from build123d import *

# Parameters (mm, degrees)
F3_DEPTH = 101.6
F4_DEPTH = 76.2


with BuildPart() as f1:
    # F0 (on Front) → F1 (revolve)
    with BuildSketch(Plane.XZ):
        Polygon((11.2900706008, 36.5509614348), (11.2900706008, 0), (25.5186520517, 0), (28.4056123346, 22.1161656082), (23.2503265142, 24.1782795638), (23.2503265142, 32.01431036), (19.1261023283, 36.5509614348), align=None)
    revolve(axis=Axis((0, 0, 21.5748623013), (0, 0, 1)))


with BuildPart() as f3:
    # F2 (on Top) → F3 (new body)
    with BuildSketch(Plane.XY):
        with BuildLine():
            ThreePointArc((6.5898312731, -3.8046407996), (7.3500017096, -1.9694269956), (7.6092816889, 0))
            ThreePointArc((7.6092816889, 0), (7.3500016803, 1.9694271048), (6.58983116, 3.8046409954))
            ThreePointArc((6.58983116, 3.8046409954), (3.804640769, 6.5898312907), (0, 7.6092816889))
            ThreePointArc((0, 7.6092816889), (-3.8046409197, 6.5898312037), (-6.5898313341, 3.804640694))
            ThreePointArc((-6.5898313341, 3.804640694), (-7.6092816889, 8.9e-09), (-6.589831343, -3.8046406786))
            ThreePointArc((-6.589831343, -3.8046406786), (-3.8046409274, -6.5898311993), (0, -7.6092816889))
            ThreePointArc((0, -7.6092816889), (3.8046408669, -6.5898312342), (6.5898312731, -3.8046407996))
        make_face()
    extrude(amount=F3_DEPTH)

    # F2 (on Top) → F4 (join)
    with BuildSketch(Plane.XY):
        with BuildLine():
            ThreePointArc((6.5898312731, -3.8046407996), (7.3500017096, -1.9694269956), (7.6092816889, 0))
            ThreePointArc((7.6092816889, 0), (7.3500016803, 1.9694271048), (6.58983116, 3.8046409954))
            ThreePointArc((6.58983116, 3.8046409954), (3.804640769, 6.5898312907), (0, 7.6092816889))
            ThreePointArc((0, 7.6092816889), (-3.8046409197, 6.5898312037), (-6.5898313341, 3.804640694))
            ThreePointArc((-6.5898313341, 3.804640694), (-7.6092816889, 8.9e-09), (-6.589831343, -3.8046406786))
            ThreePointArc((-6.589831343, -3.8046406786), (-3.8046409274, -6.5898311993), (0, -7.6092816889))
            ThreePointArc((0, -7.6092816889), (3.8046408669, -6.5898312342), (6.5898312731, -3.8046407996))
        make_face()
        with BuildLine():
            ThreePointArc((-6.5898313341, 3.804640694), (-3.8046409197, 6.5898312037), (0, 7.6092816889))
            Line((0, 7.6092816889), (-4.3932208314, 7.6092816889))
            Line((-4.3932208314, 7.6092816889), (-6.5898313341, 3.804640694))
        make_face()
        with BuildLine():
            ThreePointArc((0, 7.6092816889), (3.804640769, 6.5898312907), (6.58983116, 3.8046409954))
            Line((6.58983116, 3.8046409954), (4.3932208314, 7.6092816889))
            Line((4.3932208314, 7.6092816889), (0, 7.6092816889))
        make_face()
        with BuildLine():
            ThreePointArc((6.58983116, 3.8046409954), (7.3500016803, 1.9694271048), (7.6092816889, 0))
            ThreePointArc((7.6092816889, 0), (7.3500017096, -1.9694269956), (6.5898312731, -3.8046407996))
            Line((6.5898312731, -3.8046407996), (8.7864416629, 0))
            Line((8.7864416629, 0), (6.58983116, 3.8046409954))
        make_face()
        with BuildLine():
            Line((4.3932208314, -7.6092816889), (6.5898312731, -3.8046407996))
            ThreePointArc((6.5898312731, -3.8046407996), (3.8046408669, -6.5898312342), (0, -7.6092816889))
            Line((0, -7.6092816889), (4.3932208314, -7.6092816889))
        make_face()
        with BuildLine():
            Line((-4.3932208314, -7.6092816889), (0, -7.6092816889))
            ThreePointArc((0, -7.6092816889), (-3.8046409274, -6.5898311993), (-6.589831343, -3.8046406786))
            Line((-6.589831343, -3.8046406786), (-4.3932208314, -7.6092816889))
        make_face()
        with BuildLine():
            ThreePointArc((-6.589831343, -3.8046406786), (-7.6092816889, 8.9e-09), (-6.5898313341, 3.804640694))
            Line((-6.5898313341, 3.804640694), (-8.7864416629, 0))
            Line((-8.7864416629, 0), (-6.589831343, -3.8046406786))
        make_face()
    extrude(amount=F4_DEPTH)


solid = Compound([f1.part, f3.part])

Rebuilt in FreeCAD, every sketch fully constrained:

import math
import FreeCAD as App
import Part
import Sketcher
Q = App.Units.Quantity

doc = App.newDocument("Part")
body = doc.addObject("PartDesign::Body", "Body")

sketch1 = body.newObject("Sketcher::SketchObject", "Sketch")
sketch1.AttachmentSupport = (doc.getObject("XZ_Plane"), [""])
sketch1.MapMode = "FlatFace"
sketch1.addGeometry(Part.LineSegment(App.Vector(11.290071, 36.550961, 0), App.Vector(11.290071, 0, 0)), False)
sketch1.addGeometry(Part.LineSegment(App.Vector(11.290071, 0, 0), App.Vector(25.518652, 0, 0)), False)
sketch1.addGeometry(Part.LineSegment(App.Vector(25.518652, 0, 0), App.Vector(28.405612, 22.116166, 0)), False)
sketch1.addGeometry(Part.LineSegment(App.Vector(28.405612, 22.116166, 0), App.Vector(23.250327, 24.17828, 0)), False)
sketch1.addGeometry(Part.LineSegment(App.Vector(23.250327, 24.17828, 0), App.Vector(23.250327, 32.01431, 0)), False)
sketch1.addGeometry(Part.LineSegment(App.Vector(23.250327, 32.01431, 0), App.Vector(19.126102, 36.550961, 0)), False)
sketch1.addGeometry(Part.LineSegment(App.Vector(19.126102, 36.550961, 0), App.Vector(11.290071, 36.550961, 0)), False)
sketch1.addConstraint(Sketcher.Constraint("Coincident", 0, 2, 1, 1))
sketch1.addConstraint(Sketcher.Constraint("Coincident", 1, 2, 2, 1))
sketch1.addConstraint(Sketcher.Constraint("Coincident", 2, 2, 3, 1))
sketch1.addConstraint(Sketcher.Constraint("Coincident", 3, 2, 4, 1))
sketch1.addConstraint(Sketcher.Constraint("Coincident", 4, 2, 5, 1))
sketch1.addConstraint(Sketcher.Constraint("Coincident", 5, 2, 6, 1))
sketch1.addConstraint(Sketcher.Constraint("Coincident", 6, 2, 0, 1))
sketch1.addConstraint(Sketcher.Constraint("Vertical", 0))
sketch1.addConstraint(Sketcher.Constraint("Horizontal", 1))
sketch1.addConstraint(Sketcher.Constraint("Vertical", 4))
sketch1.addConstraint(Sketcher.Constraint("Horizontal", 6))
sketch1.addConstraint(Sketcher.Constraint("PointOnObject", 0, 2, -1))
sketch1.addConstraint(Sketcher.Constraint("Equal", 6, 4))
sketch1.addConstraint(Sketcher.Constraint("DistanceX", 1, 1, 1, 2, 14.228581))
sketch1.addConstraint(Sketcher.Constraint("DistanceX", 6, 2, 6, 1, 7.836032))
sketch1.addConstraint(Sketcher.Constraint("DistanceY", 0, 2, 0, 1, 36.550961))
sketch1.addConstraint(Sketcher.Constraint("DistanceX", -1, 1, 0, 2, 11.290071))
sketch1.addConstraint(Sketcher.Constraint("DistanceY", -1, 1, 3, 2, 24.17828))
sketch1.addConstraint(Sketcher.Constraint("DistanceX", 1, 2, 2, 2, 2.88696))
sketch1.addConstraint(Sketcher.Constraint("Distance", 2, 22.303796))
sketch1.addConstraint(Sketcher.Constraint("Distance", 3, 5.552413))
revolution = body.newObject("PartDesign::Revolution", "Revolution")
revolution.Profile = sketch1
revolution.ReferenceAxis = (sketch1, ["V_Axis"])
revolution.Angle = 360
body2 = doc.addObject("PartDesign::Body", "Body001")

sketch2 = body2.newObject("Sketcher::SketchObject", "Sketch001")
sketch2.AttachmentSupport = (doc.getObject("XY_Plane001"), [""])
sketch2.MapMode = "FlatFace"
sketch2.addGeometry(Part.ArcOfCircle(Part.Circle(App.Vector(0, 0, 0), App.Vector(0, 0, 1), 7.609282), math.radians(-30), math.radians(0)), False)
sketch2.addGeometry(Part.ArcOfCircle(Part.Circle(App.Vector(0, 0, 0), App.Vector(0, 0, 1), 7.609282), math.radians(0), math.radians(30.000001)), False)
sketch2.addGeometry(Part.ArcOfCircle(Part.Circle(App.Vector(0, 0, 0), App.Vector(0, 0, 1), 7.609282), math.radians(30.000001), math.radians(90)), False)
sketch2.addGeometry(Part.ArcOfCircle(Part.Circle(App.Vector(0, 0, 0), App.Vector(0, 0, 1), 7.609282), math.radians(90), math.radians(150.000001)), False)
sketch2.addGeometry(Part.ArcOfCircle(Part.Circle(App.Vector(0, 0, 0), App.Vector(0, 0, 1), 7.609282), math.radians(150.000001), math.radians(209.999999)), False)
sketch2.addGeometry(Part.ArcOfCircle(Part.Circle(App.Vector(0, 0, 0), App.Vector(0, 0, 1), 7.609282), math.radians(-150.000001), math.radians(-90)), False)
sketch2.addGeometry(Part.ArcOfCircle(Part.Circle(App.Vector(0, 0, 0), App.Vector(0, 0, 1), 7.609282), math.radians(-90), math.radians(-30)), False)
sketch2.addConstraint(Sketcher.Constraint("Tangent", 0, 2, 1, 1))
sketch2.addConstraint(Sketcher.Constraint("Tangent", 1, 2, 2, 1))
sketch2.addConstraint(Sketcher.Constraint("Tangent", 2, 2, 3, 1))
sketch2.addConstraint(Sketcher.Constraint("Tangent", 3, 2, 4, 1))
sketch2.addConstraint(Sketcher.Constraint("Tangent", 4, 2, 5, 1))
sketch2.addConstraint(Sketcher.Constraint("Tangent", 5, 2, 6, 1))
sketch2.addConstraint(Sketcher.Constraint("Tangent", 6, 2, 0, 1))
sketch2.addConstraint(Sketcher.Constraint("Coincident", 0, 3, -1, 1))
sketch2.addConstraint(Sketcher.Constraint("Coincident", 2, 3, -1, 1))
sketch2.addConstraint(Sketcher.Constraint("Coincident", 4, 3, -1, 1))
sketch2.addConstraint(Sketcher.Constraint("PointOnObject", 0, 2, -1))
sketch2.addConstraint(Sketcher.Constraint("PointOnObject", 2, 2, -2))
sketch2.addConstraint(Sketcher.Constraint("PointOnObject", 5, 2, -2))
sketch2.addConstraint(Sketcher.Constraint("Horizontal", 1, 2, 3, 2))
sketch2.addConstraint(Sketcher.Constraint("Horizontal", 4, 2, 6, 2))
sketch2.addConstraint(Sketcher.Constraint("Vertical", 3, 2, 4, 2))
sketch2.addConstraint(Sketcher.Constraint("Radius", 0, 7.609282))
sketch2.addConstraint(Sketcher.Constraint("DistanceX", -1, 1, 1, 2, 6.589831))
pad1 = body2.newObject("PartDesign::Pad", "Pad")
pad1.Profile = sketch2
pad1.Length = Q("4 in")

sketch3 = body2.newObject("Sketcher::SketchObject", "Sketch002")
sketch3.AttachmentSupport = (doc.getObject("XY_Plane001"), [""])
sketch3.MapMode = "FlatFace"
sketch3.addGeometry(Part.LineSegment(App.Vector(4.393221, 7.609282, 0), App.Vector(-4.393221, 7.609282, 0)), False)
sketch3.addGeometry(Part.LineSegment(App.Vector(-4.393221, 7.609282, 0), App.Vector(-6.589831, 3.804641, 0)), False)
sketch3.addGeometry(Part.LineSegment(App.Vector(-6.589831, 3.804641, 0), App.Vector(-8.786442, 0, 0)), False)
sketch3.addGeometry(Part.LineSegment(App.Vector(-8.786442, 0, 0), App.Vector(-6.589831, -3.804641, 0)), False)
sketch3.addGeometry(Part.LineSegment(App.Vector(-6.589831, -3.804641, 0), App.Vector(-4.393221, -7.609282, 0)), False)
sketch3.addGeometry(Part.LineSegment(App.Vector(-4.393221, -7.609282, 0), App.Vector(4.393221, -7.609282, 0)), False)
sketch3.addGeometry(Part.LineSegment(App.Vector(4.393221, -7.609282, 0), App.Vector(6.589831, -3.804641, 0)), False)
sketch3.addGeometry(Part.LineSegment(App.Vector(6.589831, -3.804641, 0), App.Vector(8.786442, 0, 0)), False)
sketch3.addGeometry(Part.LineSegment(App.Vector(8.786442, 0, 0), App.Vector(4.393221, 7.609282, 0)), False)
sketch3.addConstraint(Sketcher.Constraint("Coincident", 0, 2, 1, 1))
sketch3.addConstraint(Sketcher.Constraint("Coincident", 1, 2, 2, 1))
sketch3.addConstraint(Sketcher.Constraint("Coincident", 2, 2, 3, 1))
sketch3.addConstraint(Sketcher.Constraint("Coincident", 3, 2, 4, 1))
sketch3.addConstraint(Sketcher.Constraint("Coincident", 4, 2, 5, 1))
sketch3.addConstraint(Sketcher.Constraint("Coincident", 5, 2, 6, 1))
sketch3.addConstraint(Sketcher.Constraint("Coincident", 6, 2, 7, 1))
sketch3.addConstraint(Sketcher.Constraint("Coincident", 7, 2, 8, 1))
sketch3.addConstraint(Sketcher.Constraint("Coincident", 8, 2, 0, 1))
sketch3.addConstraint(Sketcher.Constraint("Horizontal", 0))
sketch3.addConstraint(Sketcher.Constraint("Horizontal", 5))
sketch3.addConstraint(Sketcher.Constraint("Symmetric", 0, 2, 5, 2, -1, 1))
sketch3.addConstraint(Sketcher.Constraint("Symmetric", 1, 2, 6, 2, -1, 1))
sketch3.addConstraint(Sketcher.Constraint("Symmetric", 2, 2, 7, 2, -1, 1))
sketch3.addConstraint(Sketcher.Constraint("Symmetric", 3, 2, 6, 2, -2))
sketch3.addConstraint(Sketcher.Constraint("PointOnObject", 2, 2, -1))
sketch3.addConstraint(Sketcher.Constraint("Parallel", 1, 2))
sketch3.addConstraint(Sketcher.Constraint("Parallel", 3, 4))
sketch3.addConstraint(Sketcher.Constraint("Parallel", 4, 8))
sketch3.addConstraint(Sketcher.Constraint("Equal", 1, 2))
sketch3.addConstraint(Sketcher.Constraint("Angle", 1, Q("-120 deg")))
sketch3.addConstraint(Sketcher.Constraint("DistanceX", 0, 2, 0, 1, 8.786442))
sketch3.addConstraint(Sketcher.Constraint("Distance", 1, 4.393221))
pad2 = body2.newObject("PartDesign::Pad", "Pad001")
pad2.Profile = sketch3
pad2.Length = Q("3 in")

doc.recompute()
